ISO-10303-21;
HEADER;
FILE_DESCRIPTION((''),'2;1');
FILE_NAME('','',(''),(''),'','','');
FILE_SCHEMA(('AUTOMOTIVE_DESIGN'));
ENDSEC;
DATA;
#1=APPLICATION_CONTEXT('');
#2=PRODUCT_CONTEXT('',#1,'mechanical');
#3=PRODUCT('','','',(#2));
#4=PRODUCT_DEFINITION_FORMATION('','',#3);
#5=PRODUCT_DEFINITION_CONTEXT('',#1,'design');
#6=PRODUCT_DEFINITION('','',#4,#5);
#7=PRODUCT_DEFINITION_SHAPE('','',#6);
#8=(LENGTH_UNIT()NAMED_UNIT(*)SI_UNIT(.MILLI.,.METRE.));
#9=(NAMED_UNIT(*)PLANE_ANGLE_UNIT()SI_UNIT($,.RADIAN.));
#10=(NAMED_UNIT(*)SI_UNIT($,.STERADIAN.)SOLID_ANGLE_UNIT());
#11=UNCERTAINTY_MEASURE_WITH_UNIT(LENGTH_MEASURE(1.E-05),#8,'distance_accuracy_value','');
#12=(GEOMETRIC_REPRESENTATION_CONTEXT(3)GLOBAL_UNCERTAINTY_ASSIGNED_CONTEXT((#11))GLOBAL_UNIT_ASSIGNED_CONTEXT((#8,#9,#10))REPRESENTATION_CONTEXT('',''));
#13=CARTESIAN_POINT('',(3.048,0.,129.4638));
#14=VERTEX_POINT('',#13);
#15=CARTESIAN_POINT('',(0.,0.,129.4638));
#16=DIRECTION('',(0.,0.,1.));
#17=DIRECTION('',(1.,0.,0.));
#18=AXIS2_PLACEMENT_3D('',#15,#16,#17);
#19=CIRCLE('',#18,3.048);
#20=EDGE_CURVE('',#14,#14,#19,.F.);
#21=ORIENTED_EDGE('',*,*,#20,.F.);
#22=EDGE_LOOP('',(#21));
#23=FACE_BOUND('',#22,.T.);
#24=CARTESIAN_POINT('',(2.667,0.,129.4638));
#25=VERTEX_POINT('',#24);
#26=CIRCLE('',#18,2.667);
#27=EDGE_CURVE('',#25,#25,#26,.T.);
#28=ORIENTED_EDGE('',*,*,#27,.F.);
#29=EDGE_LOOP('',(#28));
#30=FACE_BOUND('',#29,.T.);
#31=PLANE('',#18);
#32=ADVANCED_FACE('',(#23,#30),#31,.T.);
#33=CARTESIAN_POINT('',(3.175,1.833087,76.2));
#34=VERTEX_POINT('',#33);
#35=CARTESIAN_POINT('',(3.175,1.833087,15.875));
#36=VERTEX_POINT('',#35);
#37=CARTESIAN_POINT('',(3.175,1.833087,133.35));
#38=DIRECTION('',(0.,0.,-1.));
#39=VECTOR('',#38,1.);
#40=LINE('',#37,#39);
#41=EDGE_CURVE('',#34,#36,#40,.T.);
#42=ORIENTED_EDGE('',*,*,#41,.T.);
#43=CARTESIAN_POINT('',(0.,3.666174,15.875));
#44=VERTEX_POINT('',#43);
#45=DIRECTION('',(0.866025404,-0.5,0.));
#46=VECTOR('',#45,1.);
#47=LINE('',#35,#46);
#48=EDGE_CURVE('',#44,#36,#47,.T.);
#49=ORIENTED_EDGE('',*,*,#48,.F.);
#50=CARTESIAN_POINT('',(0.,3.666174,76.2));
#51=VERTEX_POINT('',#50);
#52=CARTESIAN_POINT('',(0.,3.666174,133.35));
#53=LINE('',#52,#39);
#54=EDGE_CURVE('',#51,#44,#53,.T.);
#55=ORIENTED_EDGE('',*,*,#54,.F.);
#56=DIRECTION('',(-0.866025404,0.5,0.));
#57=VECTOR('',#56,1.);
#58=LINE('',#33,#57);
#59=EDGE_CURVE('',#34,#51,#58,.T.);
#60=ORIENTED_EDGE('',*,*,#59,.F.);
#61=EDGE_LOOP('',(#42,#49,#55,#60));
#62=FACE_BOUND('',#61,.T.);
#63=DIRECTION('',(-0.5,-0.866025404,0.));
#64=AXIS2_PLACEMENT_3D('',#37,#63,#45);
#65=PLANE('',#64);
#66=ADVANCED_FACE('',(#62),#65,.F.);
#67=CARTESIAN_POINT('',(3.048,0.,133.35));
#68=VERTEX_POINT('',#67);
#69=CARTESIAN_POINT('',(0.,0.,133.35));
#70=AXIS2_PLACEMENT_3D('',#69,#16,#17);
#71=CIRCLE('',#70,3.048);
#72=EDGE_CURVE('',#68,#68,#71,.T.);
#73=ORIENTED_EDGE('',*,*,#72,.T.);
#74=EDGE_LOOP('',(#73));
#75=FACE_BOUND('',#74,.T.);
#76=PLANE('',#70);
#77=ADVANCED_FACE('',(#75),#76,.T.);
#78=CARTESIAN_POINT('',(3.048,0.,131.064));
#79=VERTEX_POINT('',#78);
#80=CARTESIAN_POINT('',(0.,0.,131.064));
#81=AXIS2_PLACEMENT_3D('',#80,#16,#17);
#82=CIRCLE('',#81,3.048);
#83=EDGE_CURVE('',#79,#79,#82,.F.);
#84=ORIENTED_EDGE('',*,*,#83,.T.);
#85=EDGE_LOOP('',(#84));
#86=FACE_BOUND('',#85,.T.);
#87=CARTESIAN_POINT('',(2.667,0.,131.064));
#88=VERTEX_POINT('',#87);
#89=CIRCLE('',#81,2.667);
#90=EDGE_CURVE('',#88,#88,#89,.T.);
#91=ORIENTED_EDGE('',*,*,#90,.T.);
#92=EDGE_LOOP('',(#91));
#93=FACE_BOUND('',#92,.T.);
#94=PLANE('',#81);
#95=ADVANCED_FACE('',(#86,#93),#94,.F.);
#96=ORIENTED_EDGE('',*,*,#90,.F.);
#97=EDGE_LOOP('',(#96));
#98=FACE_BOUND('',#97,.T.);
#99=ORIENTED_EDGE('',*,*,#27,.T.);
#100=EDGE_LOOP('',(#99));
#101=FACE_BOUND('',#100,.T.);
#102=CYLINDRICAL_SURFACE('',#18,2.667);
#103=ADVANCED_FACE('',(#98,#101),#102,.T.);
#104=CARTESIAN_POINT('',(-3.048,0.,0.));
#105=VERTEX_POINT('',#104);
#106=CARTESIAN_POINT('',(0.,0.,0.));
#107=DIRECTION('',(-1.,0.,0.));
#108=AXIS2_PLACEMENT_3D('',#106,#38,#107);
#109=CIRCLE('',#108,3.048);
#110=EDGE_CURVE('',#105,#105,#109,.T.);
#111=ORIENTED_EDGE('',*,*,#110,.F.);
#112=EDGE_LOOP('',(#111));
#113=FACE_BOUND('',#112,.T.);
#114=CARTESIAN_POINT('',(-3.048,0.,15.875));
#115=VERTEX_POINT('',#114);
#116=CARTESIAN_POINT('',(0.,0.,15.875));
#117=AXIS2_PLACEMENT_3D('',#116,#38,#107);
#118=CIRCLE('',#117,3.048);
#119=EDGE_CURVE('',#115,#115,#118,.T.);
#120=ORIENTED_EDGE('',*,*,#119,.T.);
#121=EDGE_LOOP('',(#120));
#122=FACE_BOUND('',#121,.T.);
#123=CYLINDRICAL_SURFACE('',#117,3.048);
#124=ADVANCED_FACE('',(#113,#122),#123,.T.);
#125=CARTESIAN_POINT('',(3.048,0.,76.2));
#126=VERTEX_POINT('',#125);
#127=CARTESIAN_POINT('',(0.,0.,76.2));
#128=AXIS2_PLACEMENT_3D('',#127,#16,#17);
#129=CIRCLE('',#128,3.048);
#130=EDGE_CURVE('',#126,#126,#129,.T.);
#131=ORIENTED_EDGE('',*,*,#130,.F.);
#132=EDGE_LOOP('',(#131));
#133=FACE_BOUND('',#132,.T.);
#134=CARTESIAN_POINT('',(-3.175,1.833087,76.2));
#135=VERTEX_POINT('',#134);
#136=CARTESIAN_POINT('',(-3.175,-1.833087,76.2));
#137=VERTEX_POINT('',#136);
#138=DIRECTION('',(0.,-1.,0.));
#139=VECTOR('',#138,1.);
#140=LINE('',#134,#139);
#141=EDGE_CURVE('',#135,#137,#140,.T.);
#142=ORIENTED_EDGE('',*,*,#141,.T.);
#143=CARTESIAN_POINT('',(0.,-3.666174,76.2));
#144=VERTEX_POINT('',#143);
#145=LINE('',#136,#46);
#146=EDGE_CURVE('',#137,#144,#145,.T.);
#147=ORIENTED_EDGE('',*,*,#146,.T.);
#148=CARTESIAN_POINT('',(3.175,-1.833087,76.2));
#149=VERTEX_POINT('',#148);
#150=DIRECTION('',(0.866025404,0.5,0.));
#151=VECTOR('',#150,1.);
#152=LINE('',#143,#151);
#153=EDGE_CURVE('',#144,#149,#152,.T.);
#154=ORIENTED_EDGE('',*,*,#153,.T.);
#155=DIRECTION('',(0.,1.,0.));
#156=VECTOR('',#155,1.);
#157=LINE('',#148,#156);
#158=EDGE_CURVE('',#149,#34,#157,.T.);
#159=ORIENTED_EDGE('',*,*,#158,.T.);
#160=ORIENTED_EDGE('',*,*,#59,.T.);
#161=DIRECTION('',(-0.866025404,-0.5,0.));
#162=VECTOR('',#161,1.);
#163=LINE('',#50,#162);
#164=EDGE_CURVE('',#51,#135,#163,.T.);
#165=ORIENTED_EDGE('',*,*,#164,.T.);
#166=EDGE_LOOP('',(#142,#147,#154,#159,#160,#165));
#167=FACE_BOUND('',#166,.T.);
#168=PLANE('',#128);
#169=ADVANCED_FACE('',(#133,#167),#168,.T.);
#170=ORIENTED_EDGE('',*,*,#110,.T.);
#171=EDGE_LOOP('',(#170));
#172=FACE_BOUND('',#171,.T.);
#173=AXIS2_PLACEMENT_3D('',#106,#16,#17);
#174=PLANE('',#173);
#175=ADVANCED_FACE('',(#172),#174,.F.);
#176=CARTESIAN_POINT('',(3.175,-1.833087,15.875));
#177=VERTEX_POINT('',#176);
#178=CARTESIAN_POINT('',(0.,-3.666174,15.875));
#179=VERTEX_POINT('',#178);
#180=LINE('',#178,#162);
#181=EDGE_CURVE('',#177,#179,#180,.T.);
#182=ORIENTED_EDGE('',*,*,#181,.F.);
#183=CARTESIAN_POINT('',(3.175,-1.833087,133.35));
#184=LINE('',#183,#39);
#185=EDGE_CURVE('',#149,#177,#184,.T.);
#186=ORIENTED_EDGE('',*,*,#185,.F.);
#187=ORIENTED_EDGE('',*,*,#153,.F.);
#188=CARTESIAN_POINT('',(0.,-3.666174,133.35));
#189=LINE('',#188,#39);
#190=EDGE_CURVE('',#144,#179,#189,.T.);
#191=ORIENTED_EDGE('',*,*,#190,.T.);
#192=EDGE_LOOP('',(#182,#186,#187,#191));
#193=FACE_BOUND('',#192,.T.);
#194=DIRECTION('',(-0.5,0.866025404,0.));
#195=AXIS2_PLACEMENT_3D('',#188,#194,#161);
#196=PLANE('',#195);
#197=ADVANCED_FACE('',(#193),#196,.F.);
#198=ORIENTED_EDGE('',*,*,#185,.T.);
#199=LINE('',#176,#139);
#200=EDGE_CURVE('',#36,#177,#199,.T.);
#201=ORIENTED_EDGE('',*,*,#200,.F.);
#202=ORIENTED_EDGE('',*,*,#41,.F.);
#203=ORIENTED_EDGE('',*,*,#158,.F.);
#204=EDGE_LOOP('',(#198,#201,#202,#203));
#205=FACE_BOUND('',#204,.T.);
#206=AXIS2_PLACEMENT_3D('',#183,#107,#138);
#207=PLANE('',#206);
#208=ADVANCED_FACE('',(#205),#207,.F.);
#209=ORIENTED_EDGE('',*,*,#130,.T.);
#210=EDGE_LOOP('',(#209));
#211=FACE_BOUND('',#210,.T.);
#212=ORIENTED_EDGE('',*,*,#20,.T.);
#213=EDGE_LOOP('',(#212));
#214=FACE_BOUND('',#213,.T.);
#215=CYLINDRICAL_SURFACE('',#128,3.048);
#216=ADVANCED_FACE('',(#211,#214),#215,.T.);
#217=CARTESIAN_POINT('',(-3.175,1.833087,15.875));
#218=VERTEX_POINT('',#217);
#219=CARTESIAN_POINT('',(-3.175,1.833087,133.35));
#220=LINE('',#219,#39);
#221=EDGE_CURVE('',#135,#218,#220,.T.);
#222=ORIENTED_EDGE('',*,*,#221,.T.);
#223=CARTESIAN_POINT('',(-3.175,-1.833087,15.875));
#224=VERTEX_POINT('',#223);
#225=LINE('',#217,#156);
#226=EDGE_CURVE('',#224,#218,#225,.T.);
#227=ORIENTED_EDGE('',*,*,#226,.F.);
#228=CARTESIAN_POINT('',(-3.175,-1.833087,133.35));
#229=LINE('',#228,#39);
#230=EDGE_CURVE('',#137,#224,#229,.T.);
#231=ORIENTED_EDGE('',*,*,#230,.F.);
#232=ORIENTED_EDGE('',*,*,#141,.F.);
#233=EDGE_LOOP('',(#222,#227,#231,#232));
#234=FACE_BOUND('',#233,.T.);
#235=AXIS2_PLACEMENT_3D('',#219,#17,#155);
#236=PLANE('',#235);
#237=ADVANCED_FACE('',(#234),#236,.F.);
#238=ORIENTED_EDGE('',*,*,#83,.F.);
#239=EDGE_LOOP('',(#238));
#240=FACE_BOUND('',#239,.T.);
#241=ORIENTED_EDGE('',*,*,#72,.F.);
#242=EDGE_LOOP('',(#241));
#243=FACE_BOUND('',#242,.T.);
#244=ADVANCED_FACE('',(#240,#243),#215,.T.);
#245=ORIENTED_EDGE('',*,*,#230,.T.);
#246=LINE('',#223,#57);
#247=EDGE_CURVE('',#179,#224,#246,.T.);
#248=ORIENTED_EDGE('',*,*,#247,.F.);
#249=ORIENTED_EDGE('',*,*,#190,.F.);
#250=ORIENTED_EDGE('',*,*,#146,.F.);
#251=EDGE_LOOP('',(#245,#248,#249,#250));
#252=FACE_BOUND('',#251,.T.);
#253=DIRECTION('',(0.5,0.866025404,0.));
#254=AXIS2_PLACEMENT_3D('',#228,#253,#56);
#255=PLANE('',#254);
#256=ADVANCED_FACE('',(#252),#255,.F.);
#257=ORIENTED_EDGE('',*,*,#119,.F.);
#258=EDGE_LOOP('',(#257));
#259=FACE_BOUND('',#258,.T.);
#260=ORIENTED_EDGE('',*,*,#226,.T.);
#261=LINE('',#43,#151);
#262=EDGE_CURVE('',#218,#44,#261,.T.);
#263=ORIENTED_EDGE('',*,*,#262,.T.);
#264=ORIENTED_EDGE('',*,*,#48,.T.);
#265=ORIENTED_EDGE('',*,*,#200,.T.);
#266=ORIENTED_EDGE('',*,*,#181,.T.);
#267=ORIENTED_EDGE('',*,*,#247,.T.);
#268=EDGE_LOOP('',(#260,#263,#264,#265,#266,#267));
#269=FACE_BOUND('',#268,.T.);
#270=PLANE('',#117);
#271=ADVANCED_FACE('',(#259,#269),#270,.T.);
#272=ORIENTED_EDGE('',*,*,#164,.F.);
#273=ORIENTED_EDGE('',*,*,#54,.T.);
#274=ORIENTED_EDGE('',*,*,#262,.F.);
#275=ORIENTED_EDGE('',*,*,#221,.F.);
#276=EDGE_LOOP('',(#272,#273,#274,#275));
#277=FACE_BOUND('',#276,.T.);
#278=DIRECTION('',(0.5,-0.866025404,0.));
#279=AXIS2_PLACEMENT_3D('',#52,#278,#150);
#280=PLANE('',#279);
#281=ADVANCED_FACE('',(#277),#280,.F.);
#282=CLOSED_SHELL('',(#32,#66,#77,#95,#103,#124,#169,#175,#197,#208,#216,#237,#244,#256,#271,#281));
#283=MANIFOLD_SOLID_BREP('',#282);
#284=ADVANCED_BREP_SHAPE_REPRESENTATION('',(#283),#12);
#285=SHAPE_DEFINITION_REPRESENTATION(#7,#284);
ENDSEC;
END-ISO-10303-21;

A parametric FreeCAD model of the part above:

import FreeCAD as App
import Part
import Sketcher

V = App.Vector
Q = App.Units.Quantity


def add_polygon(sketch, points):
    """Adds a closed chain of lines whose ends are joined by coincident constraints."""
    first, n = sketch.GeometryCount, len(points)
    for a, b in zip(points, points[1:] + points[:1]):
        sketch.addGeometry(Part.LineSegment(App.Vector(*a, 0), App.Vector(*b, 0)), False)
    for i in range(n):
        sketch.addConstraint(Sketcher.Constraint("Coincident", first + i, 2, first + (i + 1) % n, 1))

doc = App.newDocument("Part")
params = doc.addObject("Spreadsheet::Sheet", "Params")
for row, (alias, value) in enumerate([
    ("pad1_length", "5.25 in"),
    ("sketch2_diameter", "0.24 in"),
    ("pocket1_length", "2.25 in"),
    ("sketch3_diameter", "0.24 in"),
    ("pocket2_length", "0.625 in"),
    ("sketch4_diameter", "0.21 in"),
    ("pocket3_length", "0.063 in"),
], start=1):
    params.set(f"A{row}", alias)
    params.set(f"B{row}", "=" + value)
    params.setAlias(f"B{row}", alias)

body = doc.addObject("PartDesign::Body", "Body")

# Sketch on XY plane
sketch1 = body.newObject("Sketcher::SketchObject", "Sketch")
sketch1.AttachmentSupport = (doc.getObject("XY_Plane"), [""])
sketch1.MapMode = "FlatFace"
add_polygon(sketch1, [(0, 3.7), (-3.2, 1.8), (-3.2, -1.8), (0, -3.7), (3.2, -1.8), (3.2, 1.8)])  # lines 0-5
sketch1.addConstraint([
    Sketcher.Constraint("Vertical", 1),
    Sketcher.Constraint("Vertical", 4),
    Sketcher.Constraint("Symmetric", 0, 2, 3, 2, -1, 1),
    Sketcher.Constraint("Symmetric", 2, 2, 5, 2, -1, 1),
    Sketcher.Constraint("PointOnObject", 2, 2, -2),
    Sketcher.Constraint("Parallel", 2, 5),
    Sketcher.Constraint("Horizontal", 1, 2, 3, 2),
    Sketcher.Constraint("Angle", 0, Q("-150 deg")),
    Sketcher.Constraint("DistanceX", 1, 2, 3, 2, Q("0.25 in")),
    Sketcher.Constraint("DistanceY", 1, 2, 1, 1, 3.666174),
])
pad1 = body.newObject("PartDesign::Pad", "Pad")
pad1.Profile = sketch1
pad1.setExpression("Length", "Params.pad1_length")

# Sketch on XY plane
sketch2 = body.newObject("Sketcher::SketchObject", "Sketch001")
sketch2.AttachmentSupport = (doc.getObject("XY_Plane"), [""])
sketch2.MapMode = "FlatFace"
sketch2.AttachmentOffset = App.Placement(V(0, 0, 5.25 * 25.4), App.Rotation())
add_polygon(sketch2, [(-17.5, 18), (-17.5, -18), (17.5, -18), (17.5, 18)])  # lines 0-3
sketch2.addGeometry(Part.Circle(V(0, 0, 0), V(0, 0, 1), 3), False)  # 4
sketch2.addConstraint([
    Sketcher.Constraint("Vertical", 0),
    Sketcher.Constraint("Horizontal", 1),
    Sketcher.Constraint("Vertical", 2),
    Sketcher.Constraint("Horizontal", 3),
    Sketcher.Constraint("Coincident", 4, 3, -1, 1),
    Sketcher.Constraint("Symmetric", 0, 2, 2, 2, -1, 1),
    Sketcher.Constraint("Diameter", 4, Q("0.24 in")),
    Sketcher.Constraint("DistanceX", 1, 1, 1, 2, 35.09),
    Sketcher.Constraint("DistanceY", 0, 2, 0, 1, 36.072),
])
sketch2.setExpression("Constraints[10]", "Params.sketch2_diameter")
pocket1 = body.newObject("PartDesign::Pocket", "Pocket")
pocket1.Profile = sketch2
pocket1.setExpression("Length", "Params.pocket1_length")

# Sketch on XY plane
sketch3 = body.newObject("Sketcher::SketchObject", "Sketch002")
sketch3.AttachmentSupport = (doc.getObject("XY_Plane"), [""])
sketch3.MapMode = "FlatFace"
add_polygon(sketch3, [(17.5, 18), (17.5, -18), (-17.5, -18), (-17.5, 18)])  # lines 0-3
sketch3.addGeometry(Part.Circle(V(0, 0, 0), V(0, 0, 1), 3), False)  # 4
sketch3.addConstraint([
    Sketcher.Constraint("Vertical", 0),
    Sketcher.Constraint("Horizontal", 1),
    Sketcher.Constraint("Vertical", 2),
    Sketcher.Constraint("Horizontal", 3),
    Sketcher.Constraint("Coincident", 4, 3, -1, 1),
    Sketcher.Constraint("Symmetric", 0, 2, 2, 2, -1, 1),
    Sketcher.Constraint("Diameter", 4, Q("0.24 in")),
    Sketcher.Constraint("DistanceX", 1, 2, 1, 1, 35.09),
    Sketcher.Constraint("DistanceY", 0, 2, 0, 1, 36.072),
])
sketch3.setExpression("Constraints[10]", "Params.sketch3_diameter")
pocket2 = body.newObject("PartDesign::Pocket", "Pocket001")
pocket2.Profile = sketch3
pocket2.setExpression("Length", "Params.pocket2_length")
pocket2.Reversed = True

# Sketch on XY plane
sketch4 = body.newObject("Sketcher::SketchObject", "Sketch003")
sketch4.AttachmentSupport = (doc.getObject("XY_Plane"), [""])
sketch4.MapMode = "FlatFace"
sketch4.AttachmentOffset = App.Placement(V(0, 0, 5.16 * 25.4), App.Rotation())
add_polygon(sketch4, [(-17.5, 18), (-17.5, -18), (17.5, -18), (17.5, 18)])  # lines 0-3
sketch4.addGeometry(Part.Circle(V(0, 0, 0), V(0, 0, 1), 2.7), False)  # 4
sketch4.addConstraint([
    Sketcher.Constraint("Vertical", 0),
    Sketcher.Constraint("Horizontal", 1),
    Sketcher.Constraint("Vertical", 2),
    Sketcher.Constraint("Horizontal", 3),
    Sketcher.Constraint("Coincident", 4, 3, -1, 1),
    Sketcher.Constraint("Symmetric", 0, 2, 2, 2, -1, 1),
    Sketcher.Constraint("Diameter", 4, Q("0.21 in")),
    Sketcher.Constraint("DistanceX", 1, 1, 1, 2, 35.09),
    Sketcher.Constraint("DistanceY", 0, 2, 0, 1, 36.072),
])
sketch4.setExpression("Constraints[10]", "Params.sketch4_diameter")
pocket3 = body.newObject("PartDesign::Pocket", "Pocket002")
pocket3.Profile = sketch4
pocket3.setExpression("Length", "Params.pocket3_length")

doc.recompute()
